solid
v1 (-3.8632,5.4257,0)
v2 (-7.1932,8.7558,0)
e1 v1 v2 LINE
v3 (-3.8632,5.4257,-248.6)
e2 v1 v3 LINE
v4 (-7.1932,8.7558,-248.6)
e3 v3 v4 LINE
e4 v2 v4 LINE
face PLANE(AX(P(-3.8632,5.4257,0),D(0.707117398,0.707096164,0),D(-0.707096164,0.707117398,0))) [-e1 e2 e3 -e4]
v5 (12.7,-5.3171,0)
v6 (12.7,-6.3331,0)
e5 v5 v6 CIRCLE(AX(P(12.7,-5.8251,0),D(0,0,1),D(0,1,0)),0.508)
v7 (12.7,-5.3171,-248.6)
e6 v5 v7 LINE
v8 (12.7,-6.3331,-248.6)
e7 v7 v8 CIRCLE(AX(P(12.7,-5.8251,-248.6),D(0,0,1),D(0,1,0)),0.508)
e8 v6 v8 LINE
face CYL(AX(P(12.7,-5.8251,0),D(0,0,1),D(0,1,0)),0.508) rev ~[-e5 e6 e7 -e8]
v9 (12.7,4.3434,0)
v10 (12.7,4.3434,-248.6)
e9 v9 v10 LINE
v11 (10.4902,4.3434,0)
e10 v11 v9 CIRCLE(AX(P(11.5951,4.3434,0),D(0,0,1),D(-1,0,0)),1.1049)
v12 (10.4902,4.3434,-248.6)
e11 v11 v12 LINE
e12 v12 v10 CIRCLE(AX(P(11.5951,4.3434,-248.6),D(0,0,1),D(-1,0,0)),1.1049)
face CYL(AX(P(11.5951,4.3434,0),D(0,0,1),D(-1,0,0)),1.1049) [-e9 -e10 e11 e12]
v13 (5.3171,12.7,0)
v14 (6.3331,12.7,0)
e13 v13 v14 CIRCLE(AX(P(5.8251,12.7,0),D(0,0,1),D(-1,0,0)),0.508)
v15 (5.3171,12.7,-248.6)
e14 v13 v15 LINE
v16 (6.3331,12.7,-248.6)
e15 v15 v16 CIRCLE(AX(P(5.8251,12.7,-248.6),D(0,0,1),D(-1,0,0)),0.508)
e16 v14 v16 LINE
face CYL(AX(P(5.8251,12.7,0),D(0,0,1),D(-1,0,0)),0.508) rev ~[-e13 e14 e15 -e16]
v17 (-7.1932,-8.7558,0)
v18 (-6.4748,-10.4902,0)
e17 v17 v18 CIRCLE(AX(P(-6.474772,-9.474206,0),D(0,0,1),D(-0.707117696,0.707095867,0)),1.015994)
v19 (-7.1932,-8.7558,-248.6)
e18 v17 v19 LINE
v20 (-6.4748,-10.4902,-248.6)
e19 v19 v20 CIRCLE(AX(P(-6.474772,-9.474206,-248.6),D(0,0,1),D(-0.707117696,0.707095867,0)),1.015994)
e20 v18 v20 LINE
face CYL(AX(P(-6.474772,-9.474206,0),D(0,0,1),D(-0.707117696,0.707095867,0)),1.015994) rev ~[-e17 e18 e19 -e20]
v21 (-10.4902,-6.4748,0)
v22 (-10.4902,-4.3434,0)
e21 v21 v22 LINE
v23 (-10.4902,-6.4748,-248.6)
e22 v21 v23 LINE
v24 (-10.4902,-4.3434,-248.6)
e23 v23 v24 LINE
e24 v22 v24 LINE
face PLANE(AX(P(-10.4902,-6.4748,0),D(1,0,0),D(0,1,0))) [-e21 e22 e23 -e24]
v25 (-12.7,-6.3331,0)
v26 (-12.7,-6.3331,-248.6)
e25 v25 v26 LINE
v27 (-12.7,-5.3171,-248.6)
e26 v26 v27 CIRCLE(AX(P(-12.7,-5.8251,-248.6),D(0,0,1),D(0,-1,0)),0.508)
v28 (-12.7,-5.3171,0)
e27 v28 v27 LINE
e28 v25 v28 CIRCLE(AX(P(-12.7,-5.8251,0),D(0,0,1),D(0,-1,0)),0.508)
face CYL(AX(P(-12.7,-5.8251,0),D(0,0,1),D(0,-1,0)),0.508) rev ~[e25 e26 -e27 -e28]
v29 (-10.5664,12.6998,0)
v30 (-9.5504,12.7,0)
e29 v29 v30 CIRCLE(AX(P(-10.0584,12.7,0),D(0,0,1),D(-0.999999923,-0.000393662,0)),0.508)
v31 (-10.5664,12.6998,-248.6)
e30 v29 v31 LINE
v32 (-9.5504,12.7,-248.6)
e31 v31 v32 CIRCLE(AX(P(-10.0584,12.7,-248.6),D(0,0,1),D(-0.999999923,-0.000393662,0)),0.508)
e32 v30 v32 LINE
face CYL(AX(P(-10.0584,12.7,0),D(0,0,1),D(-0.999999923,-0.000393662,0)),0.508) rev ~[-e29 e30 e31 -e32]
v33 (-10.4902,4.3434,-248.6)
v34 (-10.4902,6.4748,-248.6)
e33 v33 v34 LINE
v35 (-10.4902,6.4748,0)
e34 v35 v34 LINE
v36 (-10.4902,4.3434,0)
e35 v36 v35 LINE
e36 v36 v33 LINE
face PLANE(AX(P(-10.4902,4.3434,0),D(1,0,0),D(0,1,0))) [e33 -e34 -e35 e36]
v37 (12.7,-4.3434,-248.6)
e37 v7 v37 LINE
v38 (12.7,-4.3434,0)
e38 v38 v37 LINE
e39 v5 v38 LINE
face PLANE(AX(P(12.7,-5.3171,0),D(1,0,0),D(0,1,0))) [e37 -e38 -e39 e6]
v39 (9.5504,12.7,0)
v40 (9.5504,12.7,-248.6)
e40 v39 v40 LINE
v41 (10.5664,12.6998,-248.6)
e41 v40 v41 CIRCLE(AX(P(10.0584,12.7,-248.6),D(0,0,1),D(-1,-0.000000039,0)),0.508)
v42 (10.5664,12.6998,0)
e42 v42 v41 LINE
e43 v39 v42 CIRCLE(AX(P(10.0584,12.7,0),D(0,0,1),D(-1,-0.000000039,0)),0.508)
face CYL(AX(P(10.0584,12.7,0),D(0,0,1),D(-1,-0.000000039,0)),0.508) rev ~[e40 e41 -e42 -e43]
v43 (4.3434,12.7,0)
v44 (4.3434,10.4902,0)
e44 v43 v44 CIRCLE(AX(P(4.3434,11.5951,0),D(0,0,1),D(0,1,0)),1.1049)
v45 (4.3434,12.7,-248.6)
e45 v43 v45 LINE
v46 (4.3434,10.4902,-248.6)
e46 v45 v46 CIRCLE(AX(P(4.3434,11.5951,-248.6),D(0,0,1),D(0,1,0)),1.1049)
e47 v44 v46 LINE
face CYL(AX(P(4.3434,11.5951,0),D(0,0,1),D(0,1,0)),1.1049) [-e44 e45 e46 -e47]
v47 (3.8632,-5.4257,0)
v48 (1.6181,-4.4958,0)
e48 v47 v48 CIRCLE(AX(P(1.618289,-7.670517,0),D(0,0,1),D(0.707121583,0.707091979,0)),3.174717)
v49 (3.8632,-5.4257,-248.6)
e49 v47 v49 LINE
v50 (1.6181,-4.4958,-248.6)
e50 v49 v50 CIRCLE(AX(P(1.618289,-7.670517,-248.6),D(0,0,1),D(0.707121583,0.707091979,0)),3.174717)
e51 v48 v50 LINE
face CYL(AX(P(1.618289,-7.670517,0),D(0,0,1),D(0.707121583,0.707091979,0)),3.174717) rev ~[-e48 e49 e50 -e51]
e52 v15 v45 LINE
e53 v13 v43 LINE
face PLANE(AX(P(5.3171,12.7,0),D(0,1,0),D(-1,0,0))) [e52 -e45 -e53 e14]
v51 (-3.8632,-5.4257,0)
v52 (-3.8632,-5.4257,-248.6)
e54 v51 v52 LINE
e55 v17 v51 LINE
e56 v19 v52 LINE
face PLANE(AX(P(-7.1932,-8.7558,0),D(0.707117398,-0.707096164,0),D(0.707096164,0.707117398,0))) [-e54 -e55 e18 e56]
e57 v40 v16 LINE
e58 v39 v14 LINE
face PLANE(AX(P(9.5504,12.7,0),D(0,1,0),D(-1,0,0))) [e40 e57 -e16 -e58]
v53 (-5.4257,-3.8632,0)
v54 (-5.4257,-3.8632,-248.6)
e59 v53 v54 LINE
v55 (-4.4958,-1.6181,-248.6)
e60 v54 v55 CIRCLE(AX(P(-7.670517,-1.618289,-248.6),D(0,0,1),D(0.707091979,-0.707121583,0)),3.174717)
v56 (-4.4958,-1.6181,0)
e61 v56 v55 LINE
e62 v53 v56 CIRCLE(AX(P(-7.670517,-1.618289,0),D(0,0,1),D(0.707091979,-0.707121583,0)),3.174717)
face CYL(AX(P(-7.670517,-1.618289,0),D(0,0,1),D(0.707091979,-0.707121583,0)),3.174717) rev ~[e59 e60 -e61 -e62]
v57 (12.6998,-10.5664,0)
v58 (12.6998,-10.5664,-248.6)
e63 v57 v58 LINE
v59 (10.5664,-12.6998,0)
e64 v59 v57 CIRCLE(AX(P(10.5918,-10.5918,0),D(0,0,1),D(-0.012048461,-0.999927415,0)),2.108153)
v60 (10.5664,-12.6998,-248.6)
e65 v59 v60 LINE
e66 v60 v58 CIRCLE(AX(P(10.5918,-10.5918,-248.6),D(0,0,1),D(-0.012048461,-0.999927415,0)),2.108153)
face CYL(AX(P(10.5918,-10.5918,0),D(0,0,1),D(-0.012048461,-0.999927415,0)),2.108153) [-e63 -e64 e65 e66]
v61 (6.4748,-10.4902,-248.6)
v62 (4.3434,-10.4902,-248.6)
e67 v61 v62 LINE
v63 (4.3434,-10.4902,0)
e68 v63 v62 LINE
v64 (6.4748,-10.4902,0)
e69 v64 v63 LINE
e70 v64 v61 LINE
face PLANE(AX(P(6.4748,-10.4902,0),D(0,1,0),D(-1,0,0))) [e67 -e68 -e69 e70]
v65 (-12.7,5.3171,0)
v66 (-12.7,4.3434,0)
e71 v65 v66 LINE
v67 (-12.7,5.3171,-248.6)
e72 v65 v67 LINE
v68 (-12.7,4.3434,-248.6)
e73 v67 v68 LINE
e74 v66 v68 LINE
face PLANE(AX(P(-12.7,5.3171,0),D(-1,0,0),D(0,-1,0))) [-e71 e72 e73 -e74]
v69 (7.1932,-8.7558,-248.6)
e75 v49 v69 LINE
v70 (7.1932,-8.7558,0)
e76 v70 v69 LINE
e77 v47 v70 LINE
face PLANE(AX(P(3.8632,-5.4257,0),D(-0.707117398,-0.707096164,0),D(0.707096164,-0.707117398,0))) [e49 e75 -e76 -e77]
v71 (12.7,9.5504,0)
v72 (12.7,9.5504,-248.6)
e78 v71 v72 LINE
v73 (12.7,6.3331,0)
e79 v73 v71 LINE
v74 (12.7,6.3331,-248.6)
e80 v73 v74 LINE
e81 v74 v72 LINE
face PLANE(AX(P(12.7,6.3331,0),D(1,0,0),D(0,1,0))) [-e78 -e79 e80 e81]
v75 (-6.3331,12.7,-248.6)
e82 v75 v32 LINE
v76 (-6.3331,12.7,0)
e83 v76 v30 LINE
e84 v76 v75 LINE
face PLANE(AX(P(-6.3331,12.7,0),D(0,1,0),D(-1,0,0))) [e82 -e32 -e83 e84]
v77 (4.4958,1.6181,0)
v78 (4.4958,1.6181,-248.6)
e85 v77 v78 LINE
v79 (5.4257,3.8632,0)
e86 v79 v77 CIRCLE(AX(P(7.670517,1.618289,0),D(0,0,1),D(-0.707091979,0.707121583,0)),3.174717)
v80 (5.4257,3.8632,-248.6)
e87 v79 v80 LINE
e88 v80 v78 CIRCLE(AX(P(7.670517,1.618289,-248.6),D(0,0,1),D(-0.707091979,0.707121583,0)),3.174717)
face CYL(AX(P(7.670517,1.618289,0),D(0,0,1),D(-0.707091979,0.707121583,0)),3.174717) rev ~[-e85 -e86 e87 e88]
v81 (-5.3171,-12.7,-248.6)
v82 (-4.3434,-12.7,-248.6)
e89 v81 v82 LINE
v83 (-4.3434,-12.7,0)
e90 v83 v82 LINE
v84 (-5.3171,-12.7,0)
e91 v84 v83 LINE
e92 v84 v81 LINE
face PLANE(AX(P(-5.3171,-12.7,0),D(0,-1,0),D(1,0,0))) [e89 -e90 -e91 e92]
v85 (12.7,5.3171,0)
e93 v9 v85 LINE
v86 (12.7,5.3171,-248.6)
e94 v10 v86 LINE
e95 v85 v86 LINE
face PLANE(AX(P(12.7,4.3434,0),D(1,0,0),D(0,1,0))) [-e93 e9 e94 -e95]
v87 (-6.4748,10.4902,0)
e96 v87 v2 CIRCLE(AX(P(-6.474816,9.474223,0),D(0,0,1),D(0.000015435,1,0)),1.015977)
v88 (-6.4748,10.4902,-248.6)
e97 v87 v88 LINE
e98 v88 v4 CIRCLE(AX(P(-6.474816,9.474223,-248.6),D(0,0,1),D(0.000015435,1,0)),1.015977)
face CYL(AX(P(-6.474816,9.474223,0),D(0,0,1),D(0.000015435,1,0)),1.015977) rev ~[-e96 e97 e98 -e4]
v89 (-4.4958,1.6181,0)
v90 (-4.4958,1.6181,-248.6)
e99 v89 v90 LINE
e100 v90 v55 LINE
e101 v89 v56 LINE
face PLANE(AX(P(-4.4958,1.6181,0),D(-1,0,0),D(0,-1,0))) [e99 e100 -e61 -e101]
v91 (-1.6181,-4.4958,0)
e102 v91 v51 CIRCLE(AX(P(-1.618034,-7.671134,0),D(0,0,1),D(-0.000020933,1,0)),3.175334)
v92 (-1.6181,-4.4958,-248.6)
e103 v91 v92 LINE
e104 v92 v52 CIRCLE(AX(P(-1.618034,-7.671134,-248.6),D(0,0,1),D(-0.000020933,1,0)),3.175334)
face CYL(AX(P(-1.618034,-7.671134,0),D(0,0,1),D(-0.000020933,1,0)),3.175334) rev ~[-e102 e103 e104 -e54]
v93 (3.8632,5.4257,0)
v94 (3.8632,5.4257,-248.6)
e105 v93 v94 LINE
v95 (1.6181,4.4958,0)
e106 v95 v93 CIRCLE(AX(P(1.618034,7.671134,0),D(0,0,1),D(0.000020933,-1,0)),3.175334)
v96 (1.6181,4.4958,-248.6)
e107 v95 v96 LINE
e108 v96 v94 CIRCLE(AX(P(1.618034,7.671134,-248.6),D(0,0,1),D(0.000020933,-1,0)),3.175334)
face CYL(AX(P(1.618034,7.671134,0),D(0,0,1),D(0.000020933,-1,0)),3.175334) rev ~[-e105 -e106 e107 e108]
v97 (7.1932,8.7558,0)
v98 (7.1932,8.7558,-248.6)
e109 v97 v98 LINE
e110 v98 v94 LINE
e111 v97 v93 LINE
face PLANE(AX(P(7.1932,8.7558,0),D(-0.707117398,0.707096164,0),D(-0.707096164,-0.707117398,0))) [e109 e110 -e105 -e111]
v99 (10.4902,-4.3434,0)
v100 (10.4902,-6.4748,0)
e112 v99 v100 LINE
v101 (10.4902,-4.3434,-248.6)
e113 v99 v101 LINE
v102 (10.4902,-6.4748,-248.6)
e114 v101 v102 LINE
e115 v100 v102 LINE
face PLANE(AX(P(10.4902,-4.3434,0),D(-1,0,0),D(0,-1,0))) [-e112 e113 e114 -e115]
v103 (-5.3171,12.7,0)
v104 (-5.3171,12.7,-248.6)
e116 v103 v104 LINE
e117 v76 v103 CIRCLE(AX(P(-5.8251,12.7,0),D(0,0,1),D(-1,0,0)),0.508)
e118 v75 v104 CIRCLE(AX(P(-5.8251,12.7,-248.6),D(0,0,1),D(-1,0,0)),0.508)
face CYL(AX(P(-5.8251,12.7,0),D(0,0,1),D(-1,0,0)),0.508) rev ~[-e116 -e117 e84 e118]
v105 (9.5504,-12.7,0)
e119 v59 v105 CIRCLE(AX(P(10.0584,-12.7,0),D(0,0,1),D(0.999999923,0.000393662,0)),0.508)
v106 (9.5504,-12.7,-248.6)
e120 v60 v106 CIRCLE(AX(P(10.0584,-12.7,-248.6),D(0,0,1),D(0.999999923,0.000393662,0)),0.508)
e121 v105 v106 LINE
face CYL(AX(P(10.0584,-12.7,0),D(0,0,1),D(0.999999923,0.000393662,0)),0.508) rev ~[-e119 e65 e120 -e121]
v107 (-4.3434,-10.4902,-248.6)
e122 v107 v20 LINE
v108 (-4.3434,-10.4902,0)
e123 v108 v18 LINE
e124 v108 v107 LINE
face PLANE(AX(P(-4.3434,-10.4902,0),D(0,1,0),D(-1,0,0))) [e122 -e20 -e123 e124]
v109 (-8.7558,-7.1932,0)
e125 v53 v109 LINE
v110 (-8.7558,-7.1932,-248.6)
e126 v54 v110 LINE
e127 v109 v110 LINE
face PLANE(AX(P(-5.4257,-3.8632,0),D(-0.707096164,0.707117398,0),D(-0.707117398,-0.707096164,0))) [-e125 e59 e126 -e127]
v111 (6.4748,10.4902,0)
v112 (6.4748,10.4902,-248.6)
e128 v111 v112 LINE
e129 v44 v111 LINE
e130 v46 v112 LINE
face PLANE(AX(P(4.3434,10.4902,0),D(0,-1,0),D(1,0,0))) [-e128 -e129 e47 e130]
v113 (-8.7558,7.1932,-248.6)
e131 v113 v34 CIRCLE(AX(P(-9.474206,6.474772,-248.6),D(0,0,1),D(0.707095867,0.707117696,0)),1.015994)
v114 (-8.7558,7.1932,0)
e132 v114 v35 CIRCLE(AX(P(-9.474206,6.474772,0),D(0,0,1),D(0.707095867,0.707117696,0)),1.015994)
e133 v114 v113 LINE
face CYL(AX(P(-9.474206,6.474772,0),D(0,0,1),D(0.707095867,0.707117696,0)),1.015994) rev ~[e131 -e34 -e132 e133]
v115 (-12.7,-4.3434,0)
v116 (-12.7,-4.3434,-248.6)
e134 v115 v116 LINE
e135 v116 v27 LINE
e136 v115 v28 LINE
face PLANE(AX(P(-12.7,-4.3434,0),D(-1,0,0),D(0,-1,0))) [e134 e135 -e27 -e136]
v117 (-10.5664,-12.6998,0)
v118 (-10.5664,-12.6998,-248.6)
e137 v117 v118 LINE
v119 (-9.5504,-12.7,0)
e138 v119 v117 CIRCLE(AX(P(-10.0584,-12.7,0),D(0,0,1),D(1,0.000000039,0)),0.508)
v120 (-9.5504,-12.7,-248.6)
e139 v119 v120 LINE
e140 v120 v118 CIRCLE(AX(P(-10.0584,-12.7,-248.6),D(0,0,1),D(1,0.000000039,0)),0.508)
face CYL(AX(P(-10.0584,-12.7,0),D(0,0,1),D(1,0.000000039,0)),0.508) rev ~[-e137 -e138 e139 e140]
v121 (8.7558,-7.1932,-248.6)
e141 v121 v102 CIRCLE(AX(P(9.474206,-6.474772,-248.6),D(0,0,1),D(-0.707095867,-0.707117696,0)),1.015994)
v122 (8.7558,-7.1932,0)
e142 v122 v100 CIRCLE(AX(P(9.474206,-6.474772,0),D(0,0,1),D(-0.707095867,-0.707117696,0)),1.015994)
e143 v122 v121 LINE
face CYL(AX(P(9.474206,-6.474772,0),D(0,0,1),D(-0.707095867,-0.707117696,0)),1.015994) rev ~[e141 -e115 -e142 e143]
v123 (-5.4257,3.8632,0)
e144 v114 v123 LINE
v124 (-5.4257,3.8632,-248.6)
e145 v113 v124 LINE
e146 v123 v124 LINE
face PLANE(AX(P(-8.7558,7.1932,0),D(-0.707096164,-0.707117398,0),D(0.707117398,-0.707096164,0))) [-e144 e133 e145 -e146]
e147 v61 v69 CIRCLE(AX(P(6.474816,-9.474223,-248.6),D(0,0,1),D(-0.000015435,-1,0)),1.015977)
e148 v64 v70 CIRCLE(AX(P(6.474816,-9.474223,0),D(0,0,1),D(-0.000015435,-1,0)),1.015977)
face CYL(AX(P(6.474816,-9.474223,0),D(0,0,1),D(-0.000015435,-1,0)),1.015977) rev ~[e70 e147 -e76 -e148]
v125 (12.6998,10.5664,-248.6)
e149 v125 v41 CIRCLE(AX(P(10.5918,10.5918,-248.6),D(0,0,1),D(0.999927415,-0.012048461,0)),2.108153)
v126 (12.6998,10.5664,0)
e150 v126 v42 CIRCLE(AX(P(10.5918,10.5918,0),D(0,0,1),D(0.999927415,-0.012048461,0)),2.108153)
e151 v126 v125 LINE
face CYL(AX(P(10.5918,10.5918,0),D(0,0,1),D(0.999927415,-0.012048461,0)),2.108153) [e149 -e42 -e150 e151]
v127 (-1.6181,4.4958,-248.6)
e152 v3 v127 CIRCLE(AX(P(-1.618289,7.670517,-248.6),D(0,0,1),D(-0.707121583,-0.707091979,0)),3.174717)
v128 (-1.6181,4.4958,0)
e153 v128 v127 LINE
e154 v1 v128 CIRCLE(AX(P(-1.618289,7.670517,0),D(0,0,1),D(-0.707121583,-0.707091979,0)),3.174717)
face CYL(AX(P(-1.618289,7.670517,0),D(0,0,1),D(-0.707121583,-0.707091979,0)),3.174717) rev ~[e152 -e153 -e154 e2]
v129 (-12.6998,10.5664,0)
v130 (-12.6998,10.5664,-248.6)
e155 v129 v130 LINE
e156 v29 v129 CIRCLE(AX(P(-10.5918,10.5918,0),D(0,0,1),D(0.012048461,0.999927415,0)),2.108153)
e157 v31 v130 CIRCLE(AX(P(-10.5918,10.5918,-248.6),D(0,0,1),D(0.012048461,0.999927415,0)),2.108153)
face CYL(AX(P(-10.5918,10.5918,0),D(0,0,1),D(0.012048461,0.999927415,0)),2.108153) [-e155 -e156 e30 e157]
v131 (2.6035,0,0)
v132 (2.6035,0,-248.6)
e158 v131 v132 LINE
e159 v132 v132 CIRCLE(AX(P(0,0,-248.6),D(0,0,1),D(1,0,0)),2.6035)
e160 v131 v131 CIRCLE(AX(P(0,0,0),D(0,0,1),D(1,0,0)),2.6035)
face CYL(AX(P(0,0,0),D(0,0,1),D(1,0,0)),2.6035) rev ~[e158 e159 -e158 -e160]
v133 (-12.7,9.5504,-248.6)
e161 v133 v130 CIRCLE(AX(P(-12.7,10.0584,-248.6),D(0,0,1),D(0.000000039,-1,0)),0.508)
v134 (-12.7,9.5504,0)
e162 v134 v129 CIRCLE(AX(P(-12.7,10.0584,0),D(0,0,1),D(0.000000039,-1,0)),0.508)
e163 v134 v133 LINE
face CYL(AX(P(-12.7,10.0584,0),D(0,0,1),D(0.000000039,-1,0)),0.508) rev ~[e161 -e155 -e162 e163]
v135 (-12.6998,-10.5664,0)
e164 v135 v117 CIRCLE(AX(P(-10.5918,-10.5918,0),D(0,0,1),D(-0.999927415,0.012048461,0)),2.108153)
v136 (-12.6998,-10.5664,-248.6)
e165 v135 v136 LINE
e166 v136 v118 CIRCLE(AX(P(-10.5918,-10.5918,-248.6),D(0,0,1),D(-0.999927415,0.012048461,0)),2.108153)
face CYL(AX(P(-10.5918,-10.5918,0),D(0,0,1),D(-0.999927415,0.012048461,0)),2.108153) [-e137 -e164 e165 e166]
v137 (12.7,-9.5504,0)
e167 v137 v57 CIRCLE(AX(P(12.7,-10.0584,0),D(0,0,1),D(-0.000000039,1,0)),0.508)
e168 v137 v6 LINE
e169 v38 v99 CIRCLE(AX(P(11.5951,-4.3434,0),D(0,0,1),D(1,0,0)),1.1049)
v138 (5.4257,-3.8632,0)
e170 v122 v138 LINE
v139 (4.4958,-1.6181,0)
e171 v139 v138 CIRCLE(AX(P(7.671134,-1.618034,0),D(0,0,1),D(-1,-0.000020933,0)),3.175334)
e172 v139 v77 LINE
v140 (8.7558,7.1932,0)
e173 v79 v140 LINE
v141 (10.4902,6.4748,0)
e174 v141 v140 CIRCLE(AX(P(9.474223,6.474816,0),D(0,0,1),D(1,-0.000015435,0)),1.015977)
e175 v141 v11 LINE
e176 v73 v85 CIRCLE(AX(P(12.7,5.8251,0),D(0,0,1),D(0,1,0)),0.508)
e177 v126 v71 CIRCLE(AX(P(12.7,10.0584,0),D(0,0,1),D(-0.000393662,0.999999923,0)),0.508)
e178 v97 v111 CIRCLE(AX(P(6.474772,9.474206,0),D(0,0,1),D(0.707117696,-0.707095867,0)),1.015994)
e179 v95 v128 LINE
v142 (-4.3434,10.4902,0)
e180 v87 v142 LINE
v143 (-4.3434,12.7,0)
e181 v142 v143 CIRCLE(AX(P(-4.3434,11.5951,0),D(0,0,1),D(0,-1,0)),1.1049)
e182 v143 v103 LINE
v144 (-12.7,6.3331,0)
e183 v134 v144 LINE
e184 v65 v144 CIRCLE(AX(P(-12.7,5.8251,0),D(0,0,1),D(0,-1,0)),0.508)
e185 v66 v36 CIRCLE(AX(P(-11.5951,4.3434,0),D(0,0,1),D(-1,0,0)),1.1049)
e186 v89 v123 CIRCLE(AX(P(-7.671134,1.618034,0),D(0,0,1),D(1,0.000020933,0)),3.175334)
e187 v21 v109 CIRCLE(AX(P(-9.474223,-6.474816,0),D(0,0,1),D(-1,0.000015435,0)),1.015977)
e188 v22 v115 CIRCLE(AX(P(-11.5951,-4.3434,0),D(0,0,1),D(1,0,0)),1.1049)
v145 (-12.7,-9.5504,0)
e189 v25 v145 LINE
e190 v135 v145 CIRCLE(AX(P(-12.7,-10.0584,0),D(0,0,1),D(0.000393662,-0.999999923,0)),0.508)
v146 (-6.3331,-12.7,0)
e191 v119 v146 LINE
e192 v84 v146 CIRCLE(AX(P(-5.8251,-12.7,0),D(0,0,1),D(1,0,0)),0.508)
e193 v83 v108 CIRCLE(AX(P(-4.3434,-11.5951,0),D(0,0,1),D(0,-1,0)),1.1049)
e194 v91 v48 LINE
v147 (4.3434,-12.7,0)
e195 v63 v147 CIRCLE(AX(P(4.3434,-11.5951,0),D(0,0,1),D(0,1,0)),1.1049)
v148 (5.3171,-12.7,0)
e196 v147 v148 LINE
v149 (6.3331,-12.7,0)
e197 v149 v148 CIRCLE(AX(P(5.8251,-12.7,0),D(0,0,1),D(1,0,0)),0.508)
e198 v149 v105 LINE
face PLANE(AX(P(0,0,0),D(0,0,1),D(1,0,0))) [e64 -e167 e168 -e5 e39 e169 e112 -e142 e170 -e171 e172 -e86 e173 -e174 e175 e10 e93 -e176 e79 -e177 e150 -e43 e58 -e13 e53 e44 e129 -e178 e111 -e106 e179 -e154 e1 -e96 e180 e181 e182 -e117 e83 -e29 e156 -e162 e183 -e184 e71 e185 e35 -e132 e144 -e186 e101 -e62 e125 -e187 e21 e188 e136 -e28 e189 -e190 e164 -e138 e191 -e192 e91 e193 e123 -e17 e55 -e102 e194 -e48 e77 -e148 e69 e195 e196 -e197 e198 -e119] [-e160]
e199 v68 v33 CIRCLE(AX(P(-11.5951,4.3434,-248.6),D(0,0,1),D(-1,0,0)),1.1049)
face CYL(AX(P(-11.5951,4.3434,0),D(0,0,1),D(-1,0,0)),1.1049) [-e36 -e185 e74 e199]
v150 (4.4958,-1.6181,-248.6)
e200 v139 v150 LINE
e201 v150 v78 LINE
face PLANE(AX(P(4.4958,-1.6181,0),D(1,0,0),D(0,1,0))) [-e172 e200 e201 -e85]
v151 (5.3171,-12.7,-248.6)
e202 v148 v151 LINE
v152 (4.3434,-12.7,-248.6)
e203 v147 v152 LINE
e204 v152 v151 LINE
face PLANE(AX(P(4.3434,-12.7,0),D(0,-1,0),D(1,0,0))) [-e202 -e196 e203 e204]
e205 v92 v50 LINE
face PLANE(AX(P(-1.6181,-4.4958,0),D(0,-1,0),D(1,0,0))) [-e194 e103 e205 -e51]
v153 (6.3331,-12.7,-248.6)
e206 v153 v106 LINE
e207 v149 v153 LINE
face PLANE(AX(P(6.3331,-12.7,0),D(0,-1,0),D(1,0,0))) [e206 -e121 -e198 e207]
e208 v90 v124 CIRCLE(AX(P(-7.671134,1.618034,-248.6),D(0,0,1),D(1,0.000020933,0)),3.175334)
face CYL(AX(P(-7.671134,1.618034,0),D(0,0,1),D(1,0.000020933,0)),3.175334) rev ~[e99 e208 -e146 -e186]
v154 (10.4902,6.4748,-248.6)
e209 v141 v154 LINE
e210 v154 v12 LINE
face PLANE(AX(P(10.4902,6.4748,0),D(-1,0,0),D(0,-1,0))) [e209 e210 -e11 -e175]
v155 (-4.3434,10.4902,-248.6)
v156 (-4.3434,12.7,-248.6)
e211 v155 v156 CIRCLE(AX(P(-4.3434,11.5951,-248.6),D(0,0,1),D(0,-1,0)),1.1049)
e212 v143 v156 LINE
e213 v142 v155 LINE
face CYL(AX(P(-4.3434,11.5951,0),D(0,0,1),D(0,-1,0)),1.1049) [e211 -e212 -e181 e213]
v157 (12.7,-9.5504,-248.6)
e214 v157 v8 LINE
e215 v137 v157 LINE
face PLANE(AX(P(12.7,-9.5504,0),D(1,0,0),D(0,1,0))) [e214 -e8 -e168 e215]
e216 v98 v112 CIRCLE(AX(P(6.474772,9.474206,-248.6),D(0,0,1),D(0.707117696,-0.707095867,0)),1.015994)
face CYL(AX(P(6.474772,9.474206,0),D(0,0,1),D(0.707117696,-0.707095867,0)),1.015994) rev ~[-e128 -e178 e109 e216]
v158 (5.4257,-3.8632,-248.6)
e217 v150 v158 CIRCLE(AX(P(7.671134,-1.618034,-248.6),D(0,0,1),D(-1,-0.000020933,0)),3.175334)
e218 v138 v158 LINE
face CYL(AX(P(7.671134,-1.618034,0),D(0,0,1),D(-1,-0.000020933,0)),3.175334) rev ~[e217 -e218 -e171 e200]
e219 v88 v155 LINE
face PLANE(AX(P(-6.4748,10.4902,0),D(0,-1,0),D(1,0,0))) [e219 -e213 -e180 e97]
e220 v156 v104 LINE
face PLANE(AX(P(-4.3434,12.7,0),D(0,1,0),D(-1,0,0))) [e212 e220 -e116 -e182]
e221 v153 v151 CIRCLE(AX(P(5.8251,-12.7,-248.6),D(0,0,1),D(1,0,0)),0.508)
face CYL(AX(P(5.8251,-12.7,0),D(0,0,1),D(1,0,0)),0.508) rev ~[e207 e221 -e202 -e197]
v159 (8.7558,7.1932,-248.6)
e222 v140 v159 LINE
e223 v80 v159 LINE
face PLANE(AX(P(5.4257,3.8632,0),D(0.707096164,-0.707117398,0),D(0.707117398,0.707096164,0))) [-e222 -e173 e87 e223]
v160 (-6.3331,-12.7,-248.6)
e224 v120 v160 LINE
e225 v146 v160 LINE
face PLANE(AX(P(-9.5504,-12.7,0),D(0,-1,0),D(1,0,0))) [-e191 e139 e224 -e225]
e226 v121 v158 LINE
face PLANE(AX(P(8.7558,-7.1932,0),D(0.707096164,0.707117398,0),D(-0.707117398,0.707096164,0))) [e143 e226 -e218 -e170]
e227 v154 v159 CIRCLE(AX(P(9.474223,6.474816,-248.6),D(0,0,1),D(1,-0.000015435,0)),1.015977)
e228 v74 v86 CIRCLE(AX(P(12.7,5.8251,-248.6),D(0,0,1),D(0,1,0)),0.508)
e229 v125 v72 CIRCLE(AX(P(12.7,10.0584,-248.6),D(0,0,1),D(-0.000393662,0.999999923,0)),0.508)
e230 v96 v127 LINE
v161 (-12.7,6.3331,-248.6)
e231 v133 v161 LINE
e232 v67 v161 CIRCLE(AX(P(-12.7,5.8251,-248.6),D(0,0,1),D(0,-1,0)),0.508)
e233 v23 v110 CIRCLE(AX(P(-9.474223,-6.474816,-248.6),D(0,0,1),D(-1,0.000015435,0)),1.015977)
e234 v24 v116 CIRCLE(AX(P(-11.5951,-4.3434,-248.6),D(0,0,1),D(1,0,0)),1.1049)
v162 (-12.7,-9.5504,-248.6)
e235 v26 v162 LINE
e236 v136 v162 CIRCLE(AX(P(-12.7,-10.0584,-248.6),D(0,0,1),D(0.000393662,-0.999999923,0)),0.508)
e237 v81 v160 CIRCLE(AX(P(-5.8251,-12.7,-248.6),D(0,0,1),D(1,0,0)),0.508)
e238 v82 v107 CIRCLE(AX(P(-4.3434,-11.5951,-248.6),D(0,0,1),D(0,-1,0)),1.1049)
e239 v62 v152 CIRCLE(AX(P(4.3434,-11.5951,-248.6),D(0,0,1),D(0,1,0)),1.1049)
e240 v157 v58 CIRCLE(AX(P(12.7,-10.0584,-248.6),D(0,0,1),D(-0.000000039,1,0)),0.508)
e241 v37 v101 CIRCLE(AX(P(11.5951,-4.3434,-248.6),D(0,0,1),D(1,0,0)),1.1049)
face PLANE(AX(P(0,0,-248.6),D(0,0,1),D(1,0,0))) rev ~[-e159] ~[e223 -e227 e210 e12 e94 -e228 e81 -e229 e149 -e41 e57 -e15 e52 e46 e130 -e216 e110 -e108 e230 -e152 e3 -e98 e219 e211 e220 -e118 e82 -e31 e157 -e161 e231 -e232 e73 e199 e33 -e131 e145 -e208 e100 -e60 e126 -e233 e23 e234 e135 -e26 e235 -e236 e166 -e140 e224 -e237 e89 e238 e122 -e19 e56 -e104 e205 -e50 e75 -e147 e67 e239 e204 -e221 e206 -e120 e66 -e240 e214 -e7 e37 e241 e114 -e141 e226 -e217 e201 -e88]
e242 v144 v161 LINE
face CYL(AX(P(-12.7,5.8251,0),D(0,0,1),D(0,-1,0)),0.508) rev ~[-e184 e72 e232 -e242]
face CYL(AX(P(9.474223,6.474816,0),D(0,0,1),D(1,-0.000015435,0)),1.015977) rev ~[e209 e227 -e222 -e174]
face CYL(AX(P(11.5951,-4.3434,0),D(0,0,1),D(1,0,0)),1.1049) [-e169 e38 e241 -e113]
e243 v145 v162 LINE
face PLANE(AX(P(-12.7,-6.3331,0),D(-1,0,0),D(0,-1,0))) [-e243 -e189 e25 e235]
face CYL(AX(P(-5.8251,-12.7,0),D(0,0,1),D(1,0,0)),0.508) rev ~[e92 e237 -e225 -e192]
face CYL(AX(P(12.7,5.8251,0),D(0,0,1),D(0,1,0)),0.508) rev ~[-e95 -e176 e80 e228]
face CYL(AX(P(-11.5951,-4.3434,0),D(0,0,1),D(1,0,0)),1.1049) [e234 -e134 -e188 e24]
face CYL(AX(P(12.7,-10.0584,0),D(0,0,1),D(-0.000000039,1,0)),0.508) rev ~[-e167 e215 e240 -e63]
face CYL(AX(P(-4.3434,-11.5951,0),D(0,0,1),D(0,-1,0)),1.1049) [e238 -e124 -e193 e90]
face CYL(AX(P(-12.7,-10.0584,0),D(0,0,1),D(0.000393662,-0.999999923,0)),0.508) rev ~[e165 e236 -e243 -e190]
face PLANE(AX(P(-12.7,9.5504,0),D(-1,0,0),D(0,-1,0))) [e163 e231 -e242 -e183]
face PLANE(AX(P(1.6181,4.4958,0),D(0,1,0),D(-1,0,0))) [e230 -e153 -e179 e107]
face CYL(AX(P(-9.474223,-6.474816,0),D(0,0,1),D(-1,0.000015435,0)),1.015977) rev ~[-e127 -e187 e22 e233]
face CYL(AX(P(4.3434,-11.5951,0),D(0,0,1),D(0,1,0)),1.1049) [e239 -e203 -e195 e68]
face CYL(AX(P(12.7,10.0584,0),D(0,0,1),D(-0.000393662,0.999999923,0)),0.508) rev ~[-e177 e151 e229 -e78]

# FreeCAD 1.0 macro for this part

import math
import FreeCAD as App
import Part
import Sketcher
Q = App.Units.Quantity

doc = App.newDocument("Part")
params = doc.addObject("Spreadsheet::Sheet", "Params")
for row, (alias, value) in enumerate([
    ("sketch1_radius", "0.02 in"),
    ("sketch1_radius2", "0.04 in"),
    ("sketch1_diameter", "0.205 in"),
    ("sketch1_radius3", "0.083 in"),
    ("sketch1_radius4", "0.125 in"),
    ("pad1_length", "9.7874016 in"),
], start=1):
    params.set(f"A{row}", alias)
    params.set(f"B{row}", "=" + value)
    params.setAlias(f"B{row}", alias)

body = doc.addObject("PartDesign::Body", "Body")

sketch1 = body.newObject("Sketcher::SketchObject", "Sketch")
sketch1.AttachmentSupport = (doc.getObject("XY_Plane"), [""])
sketch1.MapMode = "FlatFace"
sketch1.addGeometry([
    Part.ArcOfCircle(Part.Circle(App.Vector(-12.7, -10.0584, 0), App.Vector(0, 0, 1), 0.508), math.radians(-89.977443), math.radians(90)),
    Part.ArcOfCircle(Part.Circle(App.Vector(-10.5918, -10.5918, 0), App.Vector(0, 0, 1), 2.108153), math.radians(179.309657), math.radians(270.690343)),
    Part.ArcOfCircle(Part.Circle(App.Vector(-10.0584, -12.7, 0), App.Vector(0, 0, 1), 0.508), math.radians(0), math.radians(179.977443)),
    Part.LineSegment(App.Vector(-9.5504, -12.7, 0), App.Vector(-6.3331, -12.7, 0)),
    Part.ArcOfCircle(Part.Circle(App.Vector(-5.8251, -12.7, 0), App.Vector(0, 0, 1), 0.508), math.radians(0), math.radians(180)),
    Part.LineSegment(App.Vector(-5.3171, -12.7, 0), App.Vector(-4.3434, -12.7, 0)),
    Part.ArcOfCircle(Part.Circle(App.Vector(-4.3434, -11.5951, 0), App.Vector(0, 0, 1), 1.1049), math.radians(-90), math.radians(90)),
    Part.LineSegment(App.Vector(-4.3434, -10.4902, 0), App.Vector(-6.4748, -10.4902, 0)),
    Part.ArcOfCircle(Part.Circle(App.Vector(-6.4748, -9.4742, 0), App.Vector(0, 0, 1), 1.015971), math.radians(135), math.radians(270)),
    Part.LineSegment(App.Vector(-7.1932, -8.7558, 0), App.Vector(-3.8632, -5.4257, 0)),
    Part.ArcOfCircle(Part.Circle(App.Vector(-1.6181, -7.6708, 0), App.Vector(0, 0, 1), 3.175), math.radians(90), math.radians(135)),
    Part.LineSegment(App.Vector(-1.6181, -4.4958, 0), App.Vector(1.6181, -4.4958, 0)),
    Part.ArcOfCircle(Part.Circle(App.Vector(1.6181, -7.6708, 0), App.Vector(0, 0, 1), 3.175051), math.radians(45), math.radians(90)),
    Part.LineSegment(App.Vector(3.8632, -5.4257, 0), App.Vector(7.1932, -8.7558, 0)),
    Part.ArcOfCircle(Part.Circle(App.Vector(6.4748, -9.4742, 0), App.Vector(0, 0, 1), 1.016), math.radians(-90), math.radians(45)),
    Part.LineSegment(App.Vector(6.4748, -10.4902, 0), App.Vector(4.3434, -10.4902, 0)),
    Part.ArcOfCircle(Part.Circle(App.Vector(4.3434, -11.5951, 0), App.Vector(0, 0, 1), 1.1049), math.radians(90), math.radians(270)),
    Part.LineSegment(App.Vector(4.3434, -12.7, 0), App.Vector(5.3171, -12.7, 0)),
    Part.ArcOfCircle(Part.Circle(App.Vector(5.8251, -12.7, 0), App.Vector(0, 0, 1), 0.508), math.radians(0), math.radians(180)),
    Part.LineSegment(App.Vector(6.3331, -12.7, 0), App.Vector(9.5504, -12.7, 0)),
    Part.ArcOfCircle(Part.Circle(App.Vector(10.0584, -12.7, 0), App.Vector(0, 0, 1), 0.508), math.radians(0.022557), math.radians(180)),
    Part.ArcOfCircle(Part.Circle(App.Vector(10.5918, -10.5918, 0), App.Vector(0, 0, 1), 2.108153), math.radians(-90.690343), math.radians(0.690343)),
    Part.ArcOfCircle(Part.Circle(App.Vector(12.7, -10.0584, 0), App.Vector(0, 0, 1), 0.508), math.radians(90), math.radians(269.977443)),
    Part.LineSegment(App.Vector(12.7, -9.5504, 0), App.Vector(12.7, -6.3331, 0)),
    Part.ArcOfCircle(Part.Circle(App.Vector(12.7, -5.8251, 0), App.Vector(0, 0, 1), 0.508), math.radians(90), math.radians(270)),
    Part.LineSegment(App.Vector(12.7, -5.3171, 0), App.Vector(12.7, -4.3434, 0)),
    Part.ArcOfCircle(Part.Circle(App.Vector(11.5951, -4.3434, 0), App.Vector(0, 0, 1), 1.1049), math.radians(0), math.radians(180)),
    Part.LineSegment(App.Vector(10.4902, -4.3434, 0), App.Vector(10.4902, -6.4748, 0)),
    Part.ArcOfCircle(Part.Circle(App.Vector(9.4742, -6.4748, 0), App.Vector(0, 0, 1), 1.015971), math.radians(-135), math.radians(0)),
    Part.LineSegment(App.Vector(8.7558, -7.1932, 0), App.Vector(5.4257, -3.8632, 0)),
    Part.ArcOfCircle(Part.Circle(App.Vector(7.6708, -1.6181, 0), App.Vector(0, 0, 1), 3.175), math.radians(180), math.radians(225)),
    Part.LineSegment(App.Vector(4.4958, -1.6181, 0), App.Vector(4.4958, 1.6181, 0)),
    Part.ArcOfCircle(Part.Circle(App.Vector(7.6708, 1.6181, 0), App.Vector(0, 0, 1), 3.175051), math.radians(135), math.radians(180)),
    Part.LineSegment(App.Vector(5.4257, 3.8632, 0), App.Vector(8.7558, 7.1932, 0)),
    Part.ArcOfCircle(Part.Circle(App.Vector(9.4742, 6.4748, 0), App.Vector(0, 0, 1), 1.016), math.radians(0), math.radians(135)),
    Part.LineSegment(App.Vector(10.4902, 6.4748, 0), App.Vector(10.4902, 4.3434, 0)),
    Part.ArcOfCircle(Part.Circle(App.Vector(11.5951, 4.3434, 0), App.Vector(0, 0, 1), 1.1049), math.radians(180), math.radians(360)),
    Part.LineSegment(App.Vector(12.7, 4.3434, 0), App.Vector(12.7, 5.3171, 0)),
    Part.ArcOfCircle(Part.Circle(App.Vector(12.7, 5.8251, 0), App.Vector(0, 0, 1), 0.508), math.radians(90), math.radians(270)),
    Part.LineSegment(App.Vector(12.7, 6.3331, 0), App.Vector(12.7, 9.5504, 0)),
    Part.ArcOfCircle(Part.Circle(App.Vector(12.7, 10.0584, 0), App.Vector(0, 0, 1), 0.508), math.radians(90.022557), math.radians(270)),
    Part.ArcOfCircle(Part.Circle(App.Vector(10.5918, 10.5918, 0), App.Vector(0, 0, 1), 2.108153), math.radians(-0.690343), math.radians(90.690343)),
    Part.ArcOfCircle(Part.Circle(App.Vector(10.0584, 12.7, 0), App.Vector(0, 0, 1), 0.508), math.radians(180), math.radians(359.977443)),
    Part.LineSegment(App.Vector(9.5504, 12.7, 0), App.Vector(6.3331, 12.7, 0)),
    Part.ArcOfCircle(Part.Circle(App.Vector(5.8251, 12.7, 0), App.Vector(0, 0, 1), 0.508), math.radians(180), math.radians(360)),
    Part.LineSegment(App.Vector(5.3171, 12.7, 0), App.Vector(4.3434, 12.7, 0)),
    Part.ArcOfCircle(Part.Circle(App.Vector(4.3434, 11.5951, 0), App.Vector(0, 0, 1), 1.1049), math.radians(90), math.radians(270)),
    Part.LineSegment(App.Vector(4.3434, 10.4902, 0), App.Vector(6.4748, 10.4902, 0)),
    Part.ArcOfCircle(Part.Circle(App.Vector(6.4748, 9.4742, 0), App.Vector(0, 0, 1), 1.015971), math.radians(-45), math.radians(90)),
    Part.LineSegment(App.Vector(7.1932, 8.7558, 0), App.Vector(3.8632, 5.4257, 0)),
    Part.ArcOfCircle(Part.Circle(App.Vector(1.6181, 7.6708, 0), App.Vector(0, 0, 1), 3.175), math.radians(-90), math.radians(-45)),
    Part.LineSegment(App.Vector(1.6181, 4.4958, 0), App.Vector(-1.6181, 4.4958, 0)),
    Part.ArcOfCircle(Part.Circle(App.Vector(-1.6181, 7.6708, 0), App.Vector(0, 0, 1), 3.175051), math.radians(-135), math.radians(-90)),
    Part.LineSegment(App.Vector(-3.8632, 5.4257, 0), App.Vector(-7.1932, 8.7558, 0)),
    Part.ArcOfCircle(Part.Circle(App.Vector(-6.4748, 9.4742, 0), App.Vector(0, 0, 1), 1.016), math.radians(90), math.radians(225)),
    Part.LineSegment(App.Vector(-6.4748, 10.4902, 0), App.Vector(-4.3434, 10.4902, 0)),
    Part.ArcOfCircle(Part.Circle(App.Vector(-4.3434, 11.5951, 0), App.Vector(0, 0, 1), 1.1049), math.radians(-90), math.radians(90)),
    Part.LineSegment(App.Vector(-4.3434, 12.7, 0), App.Vector(-5.3171, 12.7, 0)),
    Part.ArcOfCircle(Part.Circle(App.Vector(-5.8251, 12.7, 0), App.Vector(0, 0, 1), 0.508), math.radians(180), math.radians(360)),
    Part.LineSegment(App.Vector(-6.3331, 12.7, 0), App.Vector(-9.5504, 12.7, 0)),
    Part.ArcOfCircle(Part.Circle(App.Vector(-10.0584, 12.7, 0), App.Vector(0, 0, 1), 0.508), math.radians(-179.977443), math.radians(0)),
    Part.ArcOfCircle(Part.Circle(App.Vector(-10.5918, 10.5918, 0), App.Vector(0, 0, 1), 2.108153), math.radians(89.309657), math.radians(180.690343)),
    Part.ArcOfCircle(Part.Circle(App.Vector(-12.7, 10.0584, 0), App.Vector(0, 0, 1), 0.508), math.radians(-90), math.radians(89.977443)),
    Part.LineSegment(App.Vector(-12.7, 9.5504, 0), App.Vector(-12.7, 6.3331, 0)),
    Part.ArcOfCircle(Part.Circle(App.Vector(-12.7, 5.8251, 0), App.Vector(0, 0, 1), 0.508), math.radians(-90), math.radians(90)),
    Part.LineSegment(App.Vector(-12.7, 5.3171, 0), App.Vector(-12.7, 4.3434, 0)),
    Part.ArcOfCircle(Part.Circle(App.Vector(-11.5951, 4.3434, 0), App.Vector(0, 0, 1), 1.1049), math.radians(180), math.radians(360)),
    Part.LineSegment(App.Vector(-10.4902, 4.3434, 0), App.Vector(-10.4902, 6.4748, 0)),
    Part.ArcOfCircle(Part.Circle(App.Vector(-9.4742, 6.4748, 0), App.Vector(0, 0, 1), 1.015971), math.radians(45), math.radians(180)),
    Part.LineSegment(App.Vector(-8.7558, 7.1932, 0), App.Vector(-5.4257, 3.8632, 0)),
    Part.ArcOfCircle(Part.Circle(App.Vector(-7.6708, 1.6181, 0), App.Vector(0, 0, 1), 3.175), math.radians(0), math.radians(45)),
    Part.LineSegment(App.Vector(-4.4958, 1.6181, 0), App.Vector(-4.4958, -1.6181, 0)),
    Part.ArcOfCircle(Part.Circle(App.Vector(-7.6708, -1.6181, 0), App.Vector(0, 0, 1), 3.175051), math.radians(-45), math.radians(0)),
    Part.LineSegment(App.Vector(-5.4257, -3.8632, 0), App.Vector(-8.7558, -7.1932, 0)),
    Part.ArcOfCircle(Part.Circle(App.Vector(-9.4742, -6.4748, 0), App.Vector(0, 0, 1), 1.016), math.radians(180), math.radians(315)),
    Part.LineSegment(App.Vector(-10.4902, -6.4748, 0), App.Vector(-10.4902, -4.3434, 0)),
    Part.ArcOfCircle(Part.Circle(App.Vector(-11.5951, -4.3434, 0), App.Vector(0, 0, 1), 1.1049), math.radians(0), math.radians(180)),
    Part.LineSegment(App.Vector(-12.7, -4.3434, 0), App.Vector(-12.7, -5.3171, 0)),
    Part.ArcOfCircle(Part.Circle(App.Vector(-12.7, -5.8251, 0), App.Vector(0, 0, 1), 0.508), math.radians(-90), math.radians(90)),
    Part.LineSegment(App.Vector(-12.7, -6.3331, 0), App.Vector(-12.7, -9.5504, 0)),
    Part.Circle(App.Vector(0, 0, 0), App.Vector(0, 0, 1), 2.6035),
], False)
sketch1.addConstraint([
    Sketcher.Constraint("Coincident", 0, 1, 1, 1),
    Sketcher.Constraint("Coincident", 1, 2, 2, 2),
    Sketcher.Constraint("Coincident", 2, 1, 3, 1),
    Sketcher.Constraint("Coincident", 3, 2, 4, 2),
    Sketcher.Constraint("Coincident", 4, 1, 5, 1),
    Sketcher.Constraint("Tangent", 5, 2, 6, 1),
    Sketcher.Constraint("Tangent", 6, 2, 7, 1),
    Sketcher.Constraint("Tangent", 7, 2, 8, 2),
    Sketcher.Constraint("Tangent", 8, 1, 9, 1),
    Sketcher.Constraint("Tangent", 9, 2, 10, 2),
    Sketcher.Constraint("Tangent", 10, 1, 11, 1),
    Sketcher.Constraint("Tangent", 11, 2, 12, 2),
    Sketcher.Constraint("Tangent", 12, 1, 13, 1),
    Sketcher.Constraint("Tangent", 13, 2, 14, 2),
    Sketcher.Constraint("Tangent", 14, 1, 15, 1),
    Sketcher.Constraint("Tangent", 15, 2, 16, 1),
    Sketcher.Constraint("Tangent", 16, 2, 17, 1),
    Sketcher.Constraint("Coincident", 17, 2, 18, 2),
    Sketcher.Constraint("Coincident", 18, 1, 19, 1),
    Sketcher.Constraint("Coincident", 19, 2, 20, 2),
    Sketcher.Constraint("Coincident", 20, 1, 21, 1),
    Sketcher.Constraint("Coincident", 21, 2, 22, 2),
    Sketcher.Constraint("Coincident", 22, 1, 23, 1),
    Sketcher.Constraint("Coincident", 23, 2, 24, 2),
    Sketcher.Constraint("Coincident", 24, 1, 25, 1),
    Sketcher.Constraint("Tangent", 25, 2, 26, 1),
    Sketcher.Constraint("Tangent", 26, 2, 27, 1),
    Sketcher.Constraint("Tangent", 27, 2, 28, 2),
    Sketcher.Constraint("Tangent", 28, 1, 29, 1),
    Sketcher.Constraint("Tangent", 29, 2, 30, 2),
    Sketcher.Constraint("Tangent", 30, 1, 31, 1),
    Sketcher.Constraint("Tangent", 31, 2, 32, 2),
    Sketcher.Constraint("Tangent", 32, 1, 33, 1),
    Sketcher.Constraint("Tangent", 33, 2, 34, 2),
    Sketcher.Constraint("Tangent", 34, 1, 35, 1),
    Sketcher.Constraint("Tangent", 35, 2, 36, 1),
    Sketcher.Constraint("Tangent", 36, 2, 37, 1),
    Sketcher.Constraint("Coincident", 37, 2, 38, 2),
    Sketcher.Constraint("Coincident", 38, 1, 39, 1),
    Sketcher.Constraint("Coincident", 39, 2, 40, 2),
    Sketcher.Constraint("Coincident", 40, 1, 41, 1),
    Sketcher.Constraint("Coincident", 41, 2, 42, 2),
    Sketcher.Constraint("Coincident", 42, 1, 43, 1),
    Sketcher.Constraint("Coincident", 43, 2, 44, 2),
    Sketcher.Constraint("Coincident", 44, 1, 45, 1),
    Sketcher.Constraint("Tangent", 45, 2, 46, 1),
    Sketcher.Constraint("Tangent", 46, 2, 47, 1),
    Sketcher.Constraint("Tangent", 47, 2, 48, 2),
    Sketcher.Constraint("Tangent", 48, 1, 49, 1),
    Sketcher.Constraint("Tangent", 49, 2, 50, 2),
    Sketcher.Constraint("Tangent", 50, 1, 51, 1),
    Sketcher.Constraint("Tangent", 51, 2, 52, 2),
    Sketcher.Constraint("Tangent", 52, 1, 53, 1),
    Sketcher.Constraint("Tangent", 53, 2, 54, 2),
    Sketcher.Constraint("Tangent", 54, 1, 55, 1),
    Sketcher.Constraint("Tangent", 55, 2, 56, 1),
    Sketcher.Constraint("Tangent", 56, 2, 57, 1),
    Sketcher.Constraint("Coincident", 57, 2, 58, 2),
    Sketcher.Constraint("Coincident", 58, 1, 59, 1),
    Sketcher.Constraint("Coincident", 59, 2, 60, 2),
    Sketcher.Constraint("Coincident", 60, 1, 61, 1),
    Sketcher.Constraint("Coincident", 61, 2, 62, 2),
    Sketcher.Constraint("Coincident", 62, 1, 63, 1),
    Sketcher.Constraint("Coincident", 63, 2, 64, 2),
    Sketcher.Constraint("Coincident", 64, 1, 65, 1),
    Sketcher.Constraint("Tangent", 65, 2, 66, 1),
    Sketcher.Constraint("Tangent", 66, 2, 67, 1),
    Sketcher.Constraint("Tangent", 67, 2, 68, 2),
    Sketcher.Constraint("Tangent", 68, 1, 69, 1),
    Sketcher.Constraint("Tangent", 69, 2, 70, 2),
    Sketcher.Constraint("Tangent", 70, 1, 71, 1),
    Sketcher.Constraint("Tangent", 71, 2, 72, 2),
    Sketcher.Constraint("Tangent", 72, 1, 73, 1),
    Sketcher.Constraint("Tangent", 73, 2, 74, 2),
    Sketcher.Constraint("Tangent", 74, 1, 75, 1),
    Sketcher.Constraint("Tangent", 75, 2, 76, 1),
    Sketcher.Constraint("Tangent", 76, 2, 77, 1),
    Sketcher.Constraint("Coincident", 77, 2, 78, 2),
    Sketcher.Constraint("Coincident", 78, 1, 79, 1),
    Sketcher.Constraint("Coincident", 79, 2, 0, 2),
    Sketcher.Constraint("Horizontal", 3),
    Sketcher.Constraint("Horizontal", 5),
    Sketcher.Constraint("Horizontal", 7),
    Sketcher.Constraint("Horizontal", 11),
    Sketcher.Constraint("Horizontal", 15),
    Sketcher.Constraint("Horizontal", 17),
    Sketcher.Constraint("Horizontal", 19),
    Sketcher.Constraint("Vertical", 23),
    Sketcher.Constraint("Vertical", 25),
    Sketcher.Constraint("Vertical", 27),
    Sketcher.Constraint("Vertical", 31),
    Sketcher.Constraint("Vertical", 35),
    Sketcher.Constraint("Vertical", 37),
    Sketcher.Constraint("Vertical", 39),
    Sketcher.Constraint("Horizontal", 43),
    Sketcher.Constraint("Horizontal", 45),
    Sketcher.Constraint("Horizontal", 47),
    Sketcher.Constraint("Horizontal", 51),
    Sketcher.Constraint("Horizontal", 55),
    Sketcher.Constraint("Horizontal", 57),
    Sketcher.Constraint("Horizontal", 59),
    Sketcher.Constraint("Vertical", 63),
    Sketcher.Constraint("Vertical", 65),
    Sketcher.Constraint("Vertical", 67),
    Sketcher.Constraint("Vertical", 71),
    Sketcher.Constraint("Vertical", 75),
    Sketcher.Constraint("Vertical", 77),
    Sketcher.Constraint("Vertical", 79),
    Sketcher.Constraint("Coincident", 80, 3, -1, 1),
    Sketcher.Constraint("Equal", 0, 2),
    Sketcher.Constraint("Equal", 2, 4),
    Sketcher.Constraint("Equal", 10, 12),
    Sketcher.Constraint("Equal", 8, 14),
    Sketcher.Constraint("Equal", 6, 16),
    Sketcher.Constraint("Equal", 4, 18),
    Sketcher.Constraint("Equal", 18, 20),
    Sketcher.Constraint("Equal", 1, 21),
    Sketcher.Constraint("Equal", 20, 22),
    Sketcher.Constraint("Equal", 22, 24),
    Sketcher.Constraint("Equal", 16, 26),
    Sketcher.Constraint("Equal", 14, 28),
    Sketcher.Constraint("Equal", 12, 30),
    Sketcher.Constraint("Equal", 30, 32),
    Sketcher.Constraint("Equal", 28, 34),
    Sketcher.Constraint("Equal", 26, 36),
    Sketcher.Constraint("Equal", 24, 38),
    Sketcher.Constraint("Equal", 38, 40),
    Sketcher.Constraint("Equal", 21, 41),
    Sketcher.Constraint("Equal", 40, 42),
    Sketcher.Constraint("Equal", 42, 44),
    Sketcher.Constraint("Equal", 36, 46),
    Sketcher.Constraint("Equal", 34, 48),
    Sketcher.Constraint("Equal", 32, 50),
    Sketcher.Constraint("Equal", 50, 52),
    Sketcher.Constraint("Equal", 48, 54),
    Sketcher.Constraint("Equal", 46, 56),
    Sketcher.Constraint("Equal", 44, 58),
    Sketcher.Constraint("Equal", 58, 60),
    Sketcher.Constraint("Equal", 41, 61),
    Sketcher.Constraint("Equal", 60, 62),
    Sketcher.Constraint("Equal", 62, 64),
    Sketcher.Constraint("Equal", 56, 66),
    Sketcher.Constraint("Equal", 54, 68),
    Sketcher.Constraint("Equal", 52, 70),
    Sketcher.Constraint("Equal", 70, 72),
    Sketcher.Constraint("Equal", 68, 74),
    Sketcher.Constraint("Equal", 66, 76),
    Sketcher.Constraint("Equal", 64, 78),
    Sketcher.Constraint("Symmetric", 0, 3, 40, 3, -1, 1),
    Sketcher.Constraint("Symmetric", 1, 3, 41, 3, -1, 1),
    Sketcher.Constraint("Symmetric", 2, 3, 42, 3, -1, 1),
    Sketcher.Constraint("Symmetric", 4, 3, 44, 3, -1, 1),
    Sketcher.Constraint("Symmetric", 6, 3, 46, 3, -1, 1),
    Sketcher.Constraint("Symmetric", 10, 3, 50, 3, -1, 1),
    Sketcher.Constraint("Symmetric", 14, 3, 54, 3, -1, 1),
    Sketcher.Constraint("Symmetric", 18, 3, 58, 3, -1, 1),
    Sketcher.Constraint("Symmetric", 20, 3, 60, 3, -1, 1),
    Sketcher.Constraint("Symmetric", 21, 3, 61, 3, -1, 1),
    Sketcher.Constraint("Symmetric", 22, 3, 62, 3, -1, 1),
    Sketcher.Constraint("Symmetric", 24, 3, 64, 3, -1, 1),
    Sketcher.Constraint("Symmetric", 26, 3, 66, 3, -1, 1),
    Sketcher.Constraint("Symmetric", 30, 3, 70, 3, -1, 1),
    Sketcher.Constraint("Symmetric", 34, 3, 74, 3, -1, 1),
    Sketcher.Constraint("Symmetric", 38, 3, 78, 3, -1, 1),
    Sketcher.Constraint("Symmetric", 8, 3, 14, 3, -2),
    Sketcher.Constraint("Symmetric", 4, 3, 18, 3, -2),
    Sketcher.Constraint("Symmetric", 2, 3, 20, 3, -2),
    Sketcher.Constraint("Symmetric", 1, 3, 21, 3, -2),
    Sketcher.Constraint("Symmetric", 0, 3, 22, 3, -2),
    Sketcher.Constraint("Symmetric", 38, 3, 64, 3, -2),
    Sketcher.Constraint("Symmetric", 36, 3, 66, 3, -2),
    Sketcher.Constraint("Symmetric", 49, 2, 52, 1, -2),
    Sketcher.Constraint("Symmetric", 33, 2, 68, 1, -2),
    Sketcher.Constraint("Symmetric", 29, 2, 72, 1, -2),
    Sketcher.Constraint("Perpendicular", 9, 13),
    Sketcher.Constraint("Parallel", 13, 29),
    Sketcher.Constraint("Perpendicular", 29, 33),
    Sketcher.Constraint("Horizontal", 2, 3, 4, 3),
    Sketcher.Constraint("Horizontal", 26, 3, 76, 3),
    Sketcher.Constraint("Horizontal", 20, 3, 1, 2),
    Sketcher.Constraint("Horizontal", 1, 2, 2, 1),
    Sketcher.Constraint("Horizontal", 3, 2, 4, 1),
    Sketcher.Constraint("Horizontal", 17, 2, 18, 1),
    Sketcher.Constraint("Horizontal", 41, 2, 42, 1),
    Sketcher.Constraint("Horizontal", 57, 2, 58, 1),
    Sketcher.Constraint("Vertical", 22, 3, 24, 3),
    Sketcher.Constraint("Vertical", 16, 3, 46, 3),
    Sketcher.Constraint("Vertical", 6, 3, 56, 3),
    Sketcher.Constraint("Vertical", 78, 3, 0, 1),
    Sketcher.Constraint("Vertical", 21, 2, 22, 1),
    Sketcher.Constraint("Vertical", 23, 2, 24, 1),
    Sketcher.Constraint("Vertical", 37, 2, 38, 1),
    Sketcher.Constraint("Vertical", 61, 2, 62, 1),
    Sketcher.Constraint("Vertical", 77, 2, 78, 1),
    Sketcher.Constraint("Equal", 59, 23),
    Sketcher.Constraint("Equal", 57, 25),
    Sketcher.Constraint("Equal", 55, 27),
    Sketcher.Constraint("Equal", 51, 31),
    Sketcher.Constraint("Equal", 13, 29),
    Sketcher.Constraint("Radius", 0, Q("0.02 in")),
    Sketcher.Constraint("Radius", 8, Q("0.04 in")),
    Sketcher.Constraint("Diameter", 80, Q("0.205 in")),
    Sketcher.Constraint("Radius", 1, Q("0.083 in")),
    Sketcher.Constraint("Radius", 10, Q("0.125 in")),
    Sketcher.Constraint("DistanceX", 0, 3, -1, 1, Q("0.5 in")),
    Sketcher.Constraint("DistanceY", 2, 3, -1, 1, Q("0.5 in")),
    Sketcher.Constraint("Radius", 6, Q("0.0435 in")),
    Sketcher.Constraint("DistanceX", 11, 1, 11, 2, Q("0.1274 in")),
    Sketcher.Constraint("DistanceY", 0, 3, -1, 1, Q("0.396 in")),
    Sketcher.Constraint("DistanceX", 6, 3, -1, 1, Q("0.171 in")),
    Sketcher.Constraint("DistanceY", 10, 3, -1, 1, Q("0.302 in")),
    Sketcher.Constraint("DistanceX", 3, 1, 3, 2, Q("3.2173 mm")),
])
sketch1.setExpression("Constraints[199]", "Params.sketch1_radius")
sketch1.setExpression("Constraints[200]", "Params.sketch1_radius2")
sketch1.setExpression("Constraints[201]", "Params.sketch1_diameter")
sketch1.setExpression("Constraints[202]", "Params.sketch1_radius3")
sketch1.setExpression("Constraints[203]", "Params.sketch1_radius4")
pad1 = body.newObject("PartDesign::Pad", "Pad")
pad1.Profile = sketch1
pad1.setExpression("Length", "Params.pad1_length")
pad1.Reversed = True

doc.recompute()
